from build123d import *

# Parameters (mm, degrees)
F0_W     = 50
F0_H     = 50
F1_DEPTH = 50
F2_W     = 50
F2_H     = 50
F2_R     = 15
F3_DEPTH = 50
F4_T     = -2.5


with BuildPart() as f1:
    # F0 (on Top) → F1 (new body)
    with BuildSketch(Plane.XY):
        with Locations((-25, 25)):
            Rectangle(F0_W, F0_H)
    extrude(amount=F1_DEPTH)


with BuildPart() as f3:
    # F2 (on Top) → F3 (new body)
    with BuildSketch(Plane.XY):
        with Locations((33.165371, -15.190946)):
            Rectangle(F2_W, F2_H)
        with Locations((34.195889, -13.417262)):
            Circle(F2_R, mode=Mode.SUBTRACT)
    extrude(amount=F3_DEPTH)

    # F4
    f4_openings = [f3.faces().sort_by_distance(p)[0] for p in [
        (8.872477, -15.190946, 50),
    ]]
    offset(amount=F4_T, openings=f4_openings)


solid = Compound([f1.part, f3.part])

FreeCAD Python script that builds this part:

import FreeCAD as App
import Part
import Sketcher

V = App.Vector
Q = App.Units.Quantity


def faces_at(feature, points):
    """Names of the faces that lie closest to the given points."""
    faces = feature.Shape.Faces
    near = lambda p: min(range(len(faces)), key=lambda i: faces[i].distToShape(Part.Vertex(*p))[0])
    return sorted({f"Face{near(p) + 1}" for p in points})


def add_polygon(sketch, points):
    """Adds a closed chain of lines whose ends are joined by coincident constraints."""
    first, n = sketch.GeometryCount, len(points)
    for a, b in zip(points, points[1:] + points[:1]):
        sketch.addGeometry(Part.LineSegment(App.Vector(*a, 0), App.Vector(*b, 0)), False)
    for i in range(n):
        sketch.addConstraint(Sketcher.Constraint("Coincident", first + i, 2, first + (i + 1) % n, 1))

doc = App.newDocument("Part")
params = doc.addObject("Spreadsheet::Sheet", "Params")
for row, (alias, value) in enumerate([
    ("sketch1_width", "50 mm"),
    ("pad1_length", "50 mm"),
    ("sketch2_diameter", "30 mm"),
    ("sketch2_width", "50 mm"),
    ("pad2_length", "50 mm"),
    ("thickness_wall", "2.5 mm"),
], start=1):
    params.set(f"A{row}", alias)
    params.set(f"B{row}", "=" + value)
    params.setAlias(f"B{row}", alias)

body = doc.addObject("PartDesign::Body", "Body")

# Sketch on XY plane
sketch1 = body.newObject("Sketcher::SketchObject", "Sketch")
sketch1.AttachmentSupport = (doc.getObject("XY_Plane"), [""])
sketch1.MapMode = "FlatFace"
add_polygon(sketch1, [(-50, 50), (-50, 0), (0, 0), (0, 50)])  # lines 0-3
sketch1.addConstraint([
    Sketcher.Constraint("Vertical", 0),
    Sketcher.Constraint("Horizontal", 1),
    Sketcher.Constraint("Vertical", 2),
    Sketcher.Constraint("Horizontal", 3),
    Sketcher.Constraint("Coincident", 1, 2, -1, 1),
    Sketcher.Constraint("Equal", 3, 0),
    Sketcher.Constraint("DistanceX", 1, 1, 1, 2, Q("50 mm")),
])
sketch1.setExpression("Constraints[10]", "Params.sketch1_width")
pad1 = body.newObject("PartDesign::Pad", "Pad")
pad1.Profile = sketch1
pad1.setExpression("Length", "Params.pad1_length")
body2 = doc.addObject("PartDesign::Body", "Body001")

# Sketch on XY plane
sketch2 = body2.newObject("Sketcher::SketchObject", "Sketch001")
sketch2.AttachmentSupport = (doc.getObject("XY_Plane001"), [""])
sketch2.MapMode = "FlatFace"
add_polygon(sketch2, [(8, 10), (8, -40), (58, -40), (58, 10)])  # lines 0-3
sketch2.addGeometry(Part.Circle(V(34, -13, 0), V(0, 0, 1), 15), False)  # 4
sketch2.addConstraint([
    Sketcher.Constraint("Vertical", 0),
    Sketcher.Constraint("Horizontal", 1),
    Sketcher.Constraint("Vertical", 2),
    Sketcher.Constraint("Horizontal", 3),
    Sketcher.Constraint("Equal", 3, 0),
    Sketcher.Constraint("Diameter", 4, Q("30 mm")),
    Sketcher.Constraint("DistanceX", 1, 1, 1, 2, Q("50 mm")),
    Sketcher.Constraint("DistanceX", -1, 1, 4, 3, Q("34.195889 mm")),
    Sketcher.Constraint("DistanceY", 4, 3, -1, 1, Q("13.417262 mm")),
    Sketcher.Constraint("DistanceX", -1, 1, 0, 2, Q("8.165371 mm")),
    Sketcher.Constraint("DistanceY", 0, 2, -1, 1, Q("40.190946 mm")),
])
sketch2.setExpression("Constraints[9]", "Params.sketch2_diameter")
sketch2.setExpression("Constraints[10]", "Params.sketch2_width")
pad2 = body2.newObject("PartDesign::Pad", "Pad001")
pad2.Profile = sketch2
pad2.setExpression("Length", "Params.pad2_length")
doc.recompute()

thickness = body2.newObject("PartDesign::Thickness", "Thickness")
thickness.Base = (pad2, faces_at(pad2, [(23.165, -25.191, 50)]))
thickness.setExpression("Value", "Params.thickness_wall")
thickness.Reversed = True
thickness.Join = "Arc"

doc.recompute()
